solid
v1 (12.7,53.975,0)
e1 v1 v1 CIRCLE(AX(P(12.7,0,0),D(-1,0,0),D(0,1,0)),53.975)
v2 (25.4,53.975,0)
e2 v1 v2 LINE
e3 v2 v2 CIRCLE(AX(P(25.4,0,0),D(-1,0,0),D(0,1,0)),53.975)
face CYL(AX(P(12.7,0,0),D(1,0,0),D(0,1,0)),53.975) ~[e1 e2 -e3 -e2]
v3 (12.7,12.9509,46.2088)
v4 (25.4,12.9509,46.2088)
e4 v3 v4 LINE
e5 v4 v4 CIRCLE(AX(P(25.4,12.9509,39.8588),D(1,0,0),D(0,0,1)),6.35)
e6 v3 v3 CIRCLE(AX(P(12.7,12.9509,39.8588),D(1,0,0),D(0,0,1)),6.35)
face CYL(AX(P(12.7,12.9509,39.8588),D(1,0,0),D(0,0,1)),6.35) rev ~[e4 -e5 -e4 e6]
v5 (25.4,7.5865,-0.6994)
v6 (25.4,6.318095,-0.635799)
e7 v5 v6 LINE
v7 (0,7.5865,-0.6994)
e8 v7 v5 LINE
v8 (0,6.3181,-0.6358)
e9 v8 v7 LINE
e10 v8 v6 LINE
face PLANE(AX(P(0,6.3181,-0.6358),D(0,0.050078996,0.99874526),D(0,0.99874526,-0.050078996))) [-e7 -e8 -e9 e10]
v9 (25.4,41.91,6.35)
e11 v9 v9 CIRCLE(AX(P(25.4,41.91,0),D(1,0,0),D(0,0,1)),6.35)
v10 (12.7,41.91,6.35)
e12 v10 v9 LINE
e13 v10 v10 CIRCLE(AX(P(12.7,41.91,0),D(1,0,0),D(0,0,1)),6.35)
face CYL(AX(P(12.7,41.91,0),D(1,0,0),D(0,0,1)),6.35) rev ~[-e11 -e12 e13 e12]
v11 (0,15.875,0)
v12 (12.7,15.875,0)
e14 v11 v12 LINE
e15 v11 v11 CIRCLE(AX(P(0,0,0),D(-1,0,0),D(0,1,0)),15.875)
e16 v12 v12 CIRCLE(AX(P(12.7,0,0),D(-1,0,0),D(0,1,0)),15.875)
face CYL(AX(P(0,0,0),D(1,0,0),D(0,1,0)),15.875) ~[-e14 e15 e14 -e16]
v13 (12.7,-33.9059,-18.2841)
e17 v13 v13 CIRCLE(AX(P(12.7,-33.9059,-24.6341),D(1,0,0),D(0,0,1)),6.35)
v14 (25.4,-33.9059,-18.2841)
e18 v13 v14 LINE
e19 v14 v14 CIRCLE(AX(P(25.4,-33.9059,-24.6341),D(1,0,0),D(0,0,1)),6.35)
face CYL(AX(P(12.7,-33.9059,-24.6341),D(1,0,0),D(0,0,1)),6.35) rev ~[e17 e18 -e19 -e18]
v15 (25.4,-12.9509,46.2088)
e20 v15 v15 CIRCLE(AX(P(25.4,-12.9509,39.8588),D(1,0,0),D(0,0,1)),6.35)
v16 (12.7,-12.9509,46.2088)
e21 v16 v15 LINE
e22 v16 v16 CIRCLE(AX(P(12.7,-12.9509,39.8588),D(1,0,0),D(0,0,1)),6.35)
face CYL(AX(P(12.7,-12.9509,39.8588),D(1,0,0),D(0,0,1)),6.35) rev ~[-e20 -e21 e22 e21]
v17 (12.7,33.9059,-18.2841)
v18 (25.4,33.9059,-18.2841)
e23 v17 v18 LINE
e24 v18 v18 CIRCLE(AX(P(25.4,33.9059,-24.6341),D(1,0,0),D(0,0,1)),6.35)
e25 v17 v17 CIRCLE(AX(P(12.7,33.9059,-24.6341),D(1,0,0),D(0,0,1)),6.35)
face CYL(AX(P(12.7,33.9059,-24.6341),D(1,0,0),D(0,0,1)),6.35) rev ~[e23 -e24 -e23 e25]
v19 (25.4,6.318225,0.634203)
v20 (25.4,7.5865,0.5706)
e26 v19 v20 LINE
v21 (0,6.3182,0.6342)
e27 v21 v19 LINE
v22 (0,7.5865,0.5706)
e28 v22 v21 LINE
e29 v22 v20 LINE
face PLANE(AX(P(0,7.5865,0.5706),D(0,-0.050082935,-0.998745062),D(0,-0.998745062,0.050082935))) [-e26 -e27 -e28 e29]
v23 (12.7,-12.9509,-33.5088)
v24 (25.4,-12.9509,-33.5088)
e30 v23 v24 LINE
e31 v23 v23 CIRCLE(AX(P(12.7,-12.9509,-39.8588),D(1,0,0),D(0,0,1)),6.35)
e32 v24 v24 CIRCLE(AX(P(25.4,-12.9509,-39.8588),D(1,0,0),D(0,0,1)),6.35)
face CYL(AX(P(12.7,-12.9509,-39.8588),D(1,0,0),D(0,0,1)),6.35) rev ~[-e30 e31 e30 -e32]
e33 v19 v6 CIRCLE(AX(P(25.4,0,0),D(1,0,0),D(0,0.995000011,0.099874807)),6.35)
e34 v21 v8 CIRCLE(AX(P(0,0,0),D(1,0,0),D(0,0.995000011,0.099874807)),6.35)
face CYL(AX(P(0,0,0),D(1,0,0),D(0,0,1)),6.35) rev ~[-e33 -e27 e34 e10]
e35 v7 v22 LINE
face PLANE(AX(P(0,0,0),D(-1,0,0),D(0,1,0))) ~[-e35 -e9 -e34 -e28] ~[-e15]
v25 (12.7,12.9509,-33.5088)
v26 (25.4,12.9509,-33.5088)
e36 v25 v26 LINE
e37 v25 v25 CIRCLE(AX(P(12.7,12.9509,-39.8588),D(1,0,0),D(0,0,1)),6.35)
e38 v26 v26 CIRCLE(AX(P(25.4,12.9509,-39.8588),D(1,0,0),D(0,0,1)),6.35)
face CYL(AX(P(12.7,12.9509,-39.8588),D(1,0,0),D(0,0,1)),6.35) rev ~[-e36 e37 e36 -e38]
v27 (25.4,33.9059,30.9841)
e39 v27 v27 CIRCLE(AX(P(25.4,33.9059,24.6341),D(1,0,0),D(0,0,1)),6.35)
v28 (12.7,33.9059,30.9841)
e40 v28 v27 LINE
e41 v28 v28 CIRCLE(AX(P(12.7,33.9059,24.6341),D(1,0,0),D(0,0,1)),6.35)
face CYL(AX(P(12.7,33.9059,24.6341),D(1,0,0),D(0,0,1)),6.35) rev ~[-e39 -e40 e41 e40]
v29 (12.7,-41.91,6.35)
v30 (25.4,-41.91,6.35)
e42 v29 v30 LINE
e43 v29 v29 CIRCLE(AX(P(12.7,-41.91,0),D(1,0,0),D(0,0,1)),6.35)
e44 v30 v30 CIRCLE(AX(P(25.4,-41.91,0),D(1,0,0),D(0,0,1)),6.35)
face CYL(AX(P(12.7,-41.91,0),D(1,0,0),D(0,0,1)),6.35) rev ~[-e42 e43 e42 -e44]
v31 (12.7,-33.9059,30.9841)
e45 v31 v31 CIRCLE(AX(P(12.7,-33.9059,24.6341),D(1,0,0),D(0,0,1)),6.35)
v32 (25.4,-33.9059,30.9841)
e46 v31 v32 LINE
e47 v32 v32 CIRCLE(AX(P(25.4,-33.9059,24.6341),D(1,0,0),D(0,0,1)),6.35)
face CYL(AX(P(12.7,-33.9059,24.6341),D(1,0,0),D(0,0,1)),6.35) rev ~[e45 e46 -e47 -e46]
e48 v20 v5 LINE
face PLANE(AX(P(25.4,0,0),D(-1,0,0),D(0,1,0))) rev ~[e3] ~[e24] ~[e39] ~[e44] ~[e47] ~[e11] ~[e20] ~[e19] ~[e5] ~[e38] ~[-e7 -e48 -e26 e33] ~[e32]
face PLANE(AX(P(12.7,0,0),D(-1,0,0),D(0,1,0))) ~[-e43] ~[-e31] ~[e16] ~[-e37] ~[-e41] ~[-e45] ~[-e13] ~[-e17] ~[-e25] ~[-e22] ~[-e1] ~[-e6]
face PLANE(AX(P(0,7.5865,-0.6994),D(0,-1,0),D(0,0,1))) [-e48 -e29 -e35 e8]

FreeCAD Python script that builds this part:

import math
import FreeCAD as App
import Part
import Sketcher
from FreeCAD import Vector
Q = App.Units.Quantity

doc = App.newDocument("Part")
body = doc.addObject("PartDesign::Body", "Body")

# Sketch on XY plane
sketch1 = body.newObject("Sketcher::SketchObject", "Sketch")
sketch1.AttachmentSupport = (doc.getObject("XY_Plane"), [""])
sketch1.MapMode = "FlatFace"
sketch1.addGeometry([
    Part.LineSegment(Vector(0, 16, 0), Vector(0, 0, 0)),  # 0
    Part.LineSegment(Vector(0, 0, 0), Vector(25, 0, 0)),  # 1
    Part.LineSegment(Vector(25, 0, 0), Vector(25, 54, 0)),  # 2
    Part.LineSegment(Vector(25, 54, 0), Vector(13, 54, 0)),  # 3
    Part.LineSegment(Vector(13, 54, 0), Vector(13, 16, 0)),  # 4
    Part.LineSegment(Vector(13, 16, 0), Vector(0, 16, 0)),  # 5
], False)
sketch1.addConstraint([
    Sketcher.Constraint("Coincident", 0, 2, 1, 1),
    Sketcher.Constraint("Coincident", 1, 2, 2, 1),
    Sketcher.Constraint("Coincident", 2, 2, 3, 1),
    Sketcher.Constraint("Coincident", 3, 2, 4, 1),
    Sketcher.Constraint("Coincident", 4, 2, 5, 1),
    Sketcher.Constraint("Coincident", 5, 2, 0, 1),
    Sketcher.Constraint("Vertical", 0),
    Sketcher.Constraint("Horizontal", 1),
    Sketcher.Constraint("Vertical", 2),
    Sketcher.Constraint("Horizontal", 3),
    Sketcher.Constraint("Vertical", 4),
    Sketcher.Constraint("Horizontal", 5),
    Sketcher.Constraint("Coincident", 0, 2, -1, 1),
    Sketcher.Constraint("Equal", 3, 5),
    Sketcher.Constraint("DistanceX", 3, 2, 3, 1, Q("0.5 in")),
    Sketcher.Constraint("DistanceY", 4, 2, 4, 1, Q("1.5 in")),
    Sketcher.Constraint("DistanceY", 0, 2, 0, 1, Q("0.625 in")),
])
revolution = body.newObject("PartDesign::Revolution", "Revolution")
revolution.Profile = sketch1
revolution.ReferenceAxis = (sketch1, ["H_Axis"])
revolution.Angle = 360

# Sketch on YZ plane
sketch2 = body.newObject("Sketcher::SketchObject", "Sketch001")
sketch2.AttachmentSupport = (doc.getObject("YZ_Plane"), [""])
sketch2.MapMode = "FlatFace"
sketch2.addGeometry(Part.Circle(Vector(0, 0, 0), Vector(0, 0, 1), 6), False)
sketch2.addConstraint([
    Sketcher.Constraint("Coincident", 0, 3, -1, 1),
    Sketcher.Constraint("Diameter", 0, Q("0.5 in")),
])
doc.recompute()
hole = body.newObject("PartDesign::Hole", "Hole")
hole.Profile = sketch2
hole.ThreadType = "None"
hole.Diameter = Q("0.5 in")
hole.DepthType = "ThroughAll"
hole.Reversed = True

# Sketch on YZ plane
sketch3 = body.newObject("Sketcher::SketchObject", "Sketch002")
sketch3.AttachmentSupport = (doc.getObject("YZ_Plane"), [""])
sketch3.MapMode = "FlatFace"
sketch3.AttachmentOffset = App.Placement(Vector(0, 0, 0.5 * 25.4), App.Rotation())
sketch3.addGeometry([
    Part.Circle(Vector(84, 0, 0), Vector(0, 0, 1), 6),  # 0
    Part.Circle(Vector(42, 0, 0), Vector(0, 0, 1), 6),  # 1
    Part.Circle(Vector(34, -25, 0), Vector(0, 0, 1), 6),  # 2
    Part.Circle(Vector(13, -40, 0), Vector(0, 0, 1), 6),  # 3
    Part.Circle(Vector(-13, -40, 0), Vector(0, 0, 1), 6),  # 4
    Part.Circle(Vector(-34, -25, 0), Vector(0, 0, 1), 6),  # 5
    Part.Circle(Vector(-42, 0, 0), Vector(0, 0, 1), 6),  # 6
    Part.Circle(Vector(-34, 25, 0), Vector(0, 0, 1), 6),  # 7
    Part.Circle(Vector(-13, 40, 0), Vector(0, 0, 1), 6),  # 8
    Part.Circle(Vector(13, 40, 0), Vector(0, 0, 1), 6),  # 9
    Part.Circle(Vector(34, 25, 0), Vector(0, 0, 1), 6),  # 10
], False)
sketch3.addConstraint([
    Sketcher.Constraint("Equal", 0, 1),
    Sketcher.Constraint("Equal", 1, 2),
    Sketcher.Constraint("Equal", 2, 3),
    Sketcher.Constraint("Equal", 3, 4),
    Sketcher.Constraint("Equal", 4, 5),
    Sketcher.Constraint("Equal", 5, 6),
    Sketcher.Constraint("Equal", 6, 7),
    Sketcher.Constraint("Equal", 7, 8),
    Sketcher.Constraint("Equal", 8, 9),
    Sketcher.Constraint("Equal", 9, 10),
    Sketcher.Constraint("Symmetric", 1, 3, 6, 3, -1, 1),
    Sketcher.Constraint("Symmetric", 2, 3, 7, 3, -1, 1),
    Sketcher.Constraint("Symmetric", 3, 3, 8, 3, -1, 1),
    Sketcher.Constraint("Symmetric", 4, 3, 9, 3, -1, 1),
    Sketcher.Constraint("Symmetric", 5, 3, 10, 3, -1, 1),
    Sketcher.Constraint("Symmetric", 3, 3, 4, 3, -2),
    Sketcher.Constraint("Symmetric", 2, 3, 5, 3, -2),
    Sketcher.Constraint("PointOnObject", 0, 3, -1),
    Sketcher.Constraint("PointOnObject", 1, 3, -1),
    Sketcher.Constraint("Diameter", 0, Q("0.5 in")),
    Sketcher.Constraint("DistanceX", -1, 1, 0, 3, Q("3.3 in")),
    Sketcher.Constraint("DistanceX", 6, 3, 1, 3, Q("3.3 in")),
    Sketcher.Constraint("DistanceX", 3, 3, 2, 3, Q("0.825 in")),
    Sketcher.Constraint("DistanceY", 3, 3, 2, 3, Q("0.5994 in")),
    Sketcher.Constraint("DistanceY", 5, 3, 7, 3, Q("1.9397 in")),
    Sketcher.Constraint("DistanceX", -1, 1, 2, 3, Q("33.906 mm")),
])
doc.recompute()
hole2 = body.newObject("PartDesign::Hole", "Hole001")
hole2.Profile = sketch3
hole2.ThreadType = "None"
hole2.Diameter = Q("0.5 in")
hole2.DepthType = "ThroughAll"
hole2.Reversed = True

# Sketch on YZ plane
sketch4 = body.newObject("Sketcher::SketchObject", "Sketch003")
sketch4.AttachmentSupport = (doc.getObject("YZ_Plane"), [""])
sketch4.MapMode = "FlatFace"
sketch4.addGeometry([
    Part.ArcOfCircle(Part.Circle(Vector(0, 0, 0), Vector(0, 0, 1), 6.3), math.radians(-5.75), math.radians(5.73)),
    Part.LineSegment(Vector(6.3, 0.6, 0), Vector(7.6, 0.6, 0)),
    Part.LineSegment(Vector(7.6, 0.6, 0), Vector(7.6, -0.7, 0)),
    Part.LineSegment(Vector(7.6, -0.7, 0), Vector(6.3, -0.6, 0)),
], False)
sketch4.addConstraint([
    Sketcher.Constraint("Coincident", 0, 2, 1, 1),
    Sketcher.Constraint("Coincident", 1, 2, 2, 1),
    Sketcher.Constraint("Coincident", 2, 2, 3, 1),
    Sketcher.Constraint("Coincident", 3, 2, 0, 1),
    Sketcher.Constraint("Vertical", 2),
    Sketcher.Constraint("Coincident", 0, 3, -1, 1),
    Sketcher.Constraint("Parallel", 1, 3),
    Sketcher.Constraint("Vertical", 0, 2, 3, 2),
    Sketcher.Constraint("DistanceY", 2, 2, 2, 1, Q("0.05 in")),
    Sketcher.Constraint("Distance", 1, Q("0.05 in")),
    Sketcher.Constraint("Radius", 0, Q("0.25 in")),
    Sketcher.Constraint("Angle", 1, Q("-2.8707 deg")),
])
pocket1 = body.newObject("PartDesign::Pocket", "Pocket")
pocket1.Profile = sketch4
pocket1.Type = "UpToFirst"
pocket1.Reversed = True

doc.recompute()
